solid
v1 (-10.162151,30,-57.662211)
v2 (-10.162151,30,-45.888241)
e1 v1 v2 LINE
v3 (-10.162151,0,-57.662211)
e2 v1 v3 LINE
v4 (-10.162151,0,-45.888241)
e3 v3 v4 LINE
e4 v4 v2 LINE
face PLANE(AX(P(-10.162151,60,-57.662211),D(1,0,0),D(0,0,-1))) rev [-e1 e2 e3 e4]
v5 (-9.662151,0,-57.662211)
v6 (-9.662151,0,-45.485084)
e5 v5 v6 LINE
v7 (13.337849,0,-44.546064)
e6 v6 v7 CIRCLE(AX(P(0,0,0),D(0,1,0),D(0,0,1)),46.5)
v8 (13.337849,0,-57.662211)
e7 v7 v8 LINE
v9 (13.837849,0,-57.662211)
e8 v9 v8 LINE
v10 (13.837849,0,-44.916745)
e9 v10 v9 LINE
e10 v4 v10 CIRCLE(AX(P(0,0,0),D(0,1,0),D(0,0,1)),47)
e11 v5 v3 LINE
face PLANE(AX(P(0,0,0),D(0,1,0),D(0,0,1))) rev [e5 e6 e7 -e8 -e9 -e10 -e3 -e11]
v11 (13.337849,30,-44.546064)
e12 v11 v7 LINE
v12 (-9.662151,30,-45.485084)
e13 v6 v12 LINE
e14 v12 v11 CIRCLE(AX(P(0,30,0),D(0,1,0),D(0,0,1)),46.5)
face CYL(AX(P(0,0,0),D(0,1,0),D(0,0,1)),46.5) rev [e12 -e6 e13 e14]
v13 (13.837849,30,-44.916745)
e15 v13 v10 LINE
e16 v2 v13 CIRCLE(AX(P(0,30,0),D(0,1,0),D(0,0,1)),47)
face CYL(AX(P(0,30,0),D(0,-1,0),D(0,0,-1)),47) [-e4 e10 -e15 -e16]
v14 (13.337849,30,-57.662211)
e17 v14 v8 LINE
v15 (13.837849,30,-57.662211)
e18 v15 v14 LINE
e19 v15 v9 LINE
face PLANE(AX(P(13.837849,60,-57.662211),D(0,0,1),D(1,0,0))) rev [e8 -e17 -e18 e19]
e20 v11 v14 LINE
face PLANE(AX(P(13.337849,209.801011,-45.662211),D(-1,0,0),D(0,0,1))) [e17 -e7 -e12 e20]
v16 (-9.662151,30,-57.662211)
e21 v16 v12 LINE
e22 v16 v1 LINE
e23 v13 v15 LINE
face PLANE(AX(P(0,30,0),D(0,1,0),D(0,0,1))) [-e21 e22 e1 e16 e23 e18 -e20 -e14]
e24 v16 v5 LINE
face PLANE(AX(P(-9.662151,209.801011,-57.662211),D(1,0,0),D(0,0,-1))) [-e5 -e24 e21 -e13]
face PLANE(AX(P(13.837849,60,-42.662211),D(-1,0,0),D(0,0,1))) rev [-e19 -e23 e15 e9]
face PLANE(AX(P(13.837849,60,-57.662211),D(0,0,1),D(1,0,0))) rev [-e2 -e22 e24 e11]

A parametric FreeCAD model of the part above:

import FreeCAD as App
import Part
import Sketcher

V = App.Vector


def add_polygon(sketch, points):
    """Adds a closed chain of lines whose ends are joined by coincident constraints."""
    first, n = sketch.GeometryCount, len(points)
    for a, b in zip(points, points[1:] + points[:1]):
        sketch.addGeometry(Part.LineSegment(App.Vector(*a, 0), App.Vector(*b, 0)), False)
    for i in range(n):
        sketch.addConstraint(Sketcher.Constraint("Coincident", first + i, 2, first + (i + 1) % n, 1))

doc = App.newDocument("Part")
body = doc.addObject("PartDesign::Body", "Body")

sketch1 = body.newObject("Sketcher::SketchObject", "Sketch")
sketch1.AttachmentSupport = (doc.getObject("XZ_Plane"), [""])
sketch1.MapMode = "FlatFace"
sketch1.addGeometry(Part.Circle(V(0, 0, 0), V(0, 0, 1), 47), False)
sketch1.addConstraint([
    Sketcher.Constraint("Coincident", 0, 3, -1, 1),
    Sketcher.Constraint("Diameter", 0, 94.0),
])
pad1 = body.newObject("PartDesign::Pad", "Pad")
pad1.Profile = sketch1
pad1.Length = 30
pad1.Reversed = True

sketch2 = body.newObject("Sketcher::SketchObject", "Sketch001")
sketch2.AttachmentSupport = (doc.getObject("XZ_Plane"), [""])
sketch2.MapMode = "FlatFace"
sketch2.AttachmentOffset = App.Placement(V(0, 0, -30), App.Rotation())
add_polygon(sketch2, [(-10, -58), (-10, -43), (14, -43), (14, -58)])
sketch2.addConstraint([
    Sketcher.Constraint("Vertical", 0),
    Sketcher.Constraint("Horizontal", 1),
    Sketcher.Constraint("Vertical", 2),
    Sketcher.Constraint("Horizontal", 3),
    Sketcher.Constraint("DistanceX", 1, 1, 1, 2, 24.0),
    Sketcher.Constraint("DistanceY", 0, 1, 0, 2, 15.0),
    Sketcher.Constraint("DistanceX", 0, 2, -1, 1, 10.162151),
    Sketcher.Constraint("DistanceY", 0, 2, -1, 1, 42.662211),
])
pad2 = body.newObject("PartDesign::Pad", "Pad001")
pad2.Profile = sketch2
pad2.Length = 60
pad2.Midplane = True

sketch3 = body.newObject("Sketcher::SketchObject", "Sketch002")
sketch3.AttachmentSupport = (doc.getObject("XZ_Plane"), [""])
sketch3.MapMode = "FlatFace"
sketch3.AttachmentOffset = App.Placement(V(0, 0, -60), App.Rotation())
add_polygon(sketch3, [(-10, -58), (-10, -43), (14, -43), (14, -58)])
sketch3.addConstraint([
    Sketcher.Constraint("Vertical", 0),
    Sketcher.Constraint("Horizontal", 1),
    Sketcher.Constraint("Vertical", 2),
    Sketcher.Constraint("Horizontal", 3),
    Sketcher.Constraint("DistanceX", 1, 1, 1, 2, 24.0),
    Sketcher.Constraint("DistanceY", 0, 1, 0, 2, 15.0),
    Sketcher.Constraint("DistanceX", 0, 2, -1, 1, 10.162151),
    Sketcher.Constraint("DistanceY", 0, 2, -1, 1, 42.662211),
])
pocket1 = body.newObject("PartDesign::Pocket", "Pocket")
pocket1.Profile = sketch3
pocket1.Length = 30
pocket1.Reversed = True

sketch4 = body.newObject("Sketcher::SketchObject", "Sketch003")
sketch4.AttachmentSupport = (doc.getObject("XZ_Plane"), [""])
sketch4.MapMode = "FlatFace"
sketch4.AttachmentOffset = App.Placement(V(0, 0, -30), App.Rotation())
add_polygon(sketch4, [(-10, -58), (-10, -46), (13, -46), (13, -58)])
sketch4.addConstraint([
    Sketcher.Constraint("Vertical", 0),
    Sketcher.Constraint("Horizontal", 1),
    Sketcher.Constraint("Vertical", 2),
    Sketcher.Constraint("Horizontal", 3),
    Sketcher.Constraint("DistanceX", 1, 1, 1, 2, 23.0),
    Sketcher.Constraint("DistanceY", 0, 1, 0, 2, 12.0),
    Sketcher.Constraint("DistanceX", 0, 2, -1, 1, 9.662151),
    Sketcher.Constraint("DistanceY", 0, 2, -1, 1, 45.662211),
])
pocket2 = body.newObject("PartDesign::Pocket", "Pocket001")
pocket2.Profile = sketch4
pocket2.Type = "ThroughAll"
pocket2.Midplane = True

sketch5 = body.newObject("Sketcher::SketchObject", "Sketch004")
sketch5.AttachmentSupport = (doc.getObject("XZ_Plane"), [""])
sketch5.MapMode = "FlatFace"
sketch5.AttachmentOffset = App.Placement(V(0, 0, -30), App.Rotation())
sketch5.addGeometry(Part.Circle(V(0, 0, 0), V(0, 0, 1), 46), False)
sketch5.addConstraint([
    Sketcher.Constraint("Coincident", 0, 3, -1, 1),
    Sketcher.Constraint("Diameter", 0, 93.0),
])
pocket3 = body.newObject("PartDesign::Pocket", "Pocket002")
pocket3.Profile = sketch5
pocket3.Length = 30
pocket3.Reversed = True

sketch6 = body.newObject("Sketcher::SketchObject", "Sketch005")
sketch6.AttachmentSupport = (doc.getObject("XY_Plane"), [""])
sketch6.MapMode = "FlatFace"
sketch6.AttachmentOffset = App.Placement(V(0, 0, -45.662211), App.Rotation())
add_polygon(sketch6, [(13.3, 30), (13.3, 0), (8.8, 0), (8.8, 30)])
sketch6.addConstraint([
    Sketcher.Constraint("Vertical", 0),
    Sketcher.Constraint("Horizontal", 1),
    Sketcher.Constraint("Vertical", 2),
    Sketcher.Constraint("Horizontal", 3),
    Sketcher.Constraint("PointOnObject", 0, 2, -1),
    Sketcher.Constraint("DistanceY", 0, 2, 0, 1, 30.0),
    Sketcher.Constraint("DistanceX", 1, 2, 1, 1, 4.550784),
    Sketcher.Constraint("DistanceX", -1, 1, 0, 2, 13.337849),
])
pocket4 = body.newObject("PartDesign::Pocket", "Pocket003")
pocket4.Profile = sketch6
pocket4.Length = 30
pocket4.Reversed = True

sketch7 = body.newObject("Sketcher::SketchObject", "Sketch006")
sketch7.AttachmentSupport = (doc.getObject("XY_Plane"), [""])
sketch7.MapMode = "FlatFace"
sketch7.AttachmentOffset = App.Placement(V(0, 0, -45.662211), App.Rotation())
add_polygon(sketch7, [(-8.8, 30), (-8.8, 0), (-9.7, 0), (-9.7, 30)])
sketch7.addConstraint([
    Sketcher.Constraint("Vertical", 0),
    Sketcher.Constraint("Horizontal", 1),
    Sketcher.Constraint("Vertical", 2),
    Sketcher.Constraint("Horizontal", 3),
    Sketcher.Constraint("PointOnObject", 0, 2, -1),
    Sketcher.Constraint("DistanceY", 0, 2, 0, 1, 30.0),
    Sketcher.Constraint("DistanceX", 1, 2, 1, 1, 0.875086),
    Sketcher.Constraint("DistanceX", 1, 2, -1, 1, 9.662151),
])
pocket5 = body.newObject("PartDesign::Pocket", "Pocket004")
pocket5.Profile = sketch7
pocket5.Length = 30
pocket5.Reversed = True

doc.recompute()
